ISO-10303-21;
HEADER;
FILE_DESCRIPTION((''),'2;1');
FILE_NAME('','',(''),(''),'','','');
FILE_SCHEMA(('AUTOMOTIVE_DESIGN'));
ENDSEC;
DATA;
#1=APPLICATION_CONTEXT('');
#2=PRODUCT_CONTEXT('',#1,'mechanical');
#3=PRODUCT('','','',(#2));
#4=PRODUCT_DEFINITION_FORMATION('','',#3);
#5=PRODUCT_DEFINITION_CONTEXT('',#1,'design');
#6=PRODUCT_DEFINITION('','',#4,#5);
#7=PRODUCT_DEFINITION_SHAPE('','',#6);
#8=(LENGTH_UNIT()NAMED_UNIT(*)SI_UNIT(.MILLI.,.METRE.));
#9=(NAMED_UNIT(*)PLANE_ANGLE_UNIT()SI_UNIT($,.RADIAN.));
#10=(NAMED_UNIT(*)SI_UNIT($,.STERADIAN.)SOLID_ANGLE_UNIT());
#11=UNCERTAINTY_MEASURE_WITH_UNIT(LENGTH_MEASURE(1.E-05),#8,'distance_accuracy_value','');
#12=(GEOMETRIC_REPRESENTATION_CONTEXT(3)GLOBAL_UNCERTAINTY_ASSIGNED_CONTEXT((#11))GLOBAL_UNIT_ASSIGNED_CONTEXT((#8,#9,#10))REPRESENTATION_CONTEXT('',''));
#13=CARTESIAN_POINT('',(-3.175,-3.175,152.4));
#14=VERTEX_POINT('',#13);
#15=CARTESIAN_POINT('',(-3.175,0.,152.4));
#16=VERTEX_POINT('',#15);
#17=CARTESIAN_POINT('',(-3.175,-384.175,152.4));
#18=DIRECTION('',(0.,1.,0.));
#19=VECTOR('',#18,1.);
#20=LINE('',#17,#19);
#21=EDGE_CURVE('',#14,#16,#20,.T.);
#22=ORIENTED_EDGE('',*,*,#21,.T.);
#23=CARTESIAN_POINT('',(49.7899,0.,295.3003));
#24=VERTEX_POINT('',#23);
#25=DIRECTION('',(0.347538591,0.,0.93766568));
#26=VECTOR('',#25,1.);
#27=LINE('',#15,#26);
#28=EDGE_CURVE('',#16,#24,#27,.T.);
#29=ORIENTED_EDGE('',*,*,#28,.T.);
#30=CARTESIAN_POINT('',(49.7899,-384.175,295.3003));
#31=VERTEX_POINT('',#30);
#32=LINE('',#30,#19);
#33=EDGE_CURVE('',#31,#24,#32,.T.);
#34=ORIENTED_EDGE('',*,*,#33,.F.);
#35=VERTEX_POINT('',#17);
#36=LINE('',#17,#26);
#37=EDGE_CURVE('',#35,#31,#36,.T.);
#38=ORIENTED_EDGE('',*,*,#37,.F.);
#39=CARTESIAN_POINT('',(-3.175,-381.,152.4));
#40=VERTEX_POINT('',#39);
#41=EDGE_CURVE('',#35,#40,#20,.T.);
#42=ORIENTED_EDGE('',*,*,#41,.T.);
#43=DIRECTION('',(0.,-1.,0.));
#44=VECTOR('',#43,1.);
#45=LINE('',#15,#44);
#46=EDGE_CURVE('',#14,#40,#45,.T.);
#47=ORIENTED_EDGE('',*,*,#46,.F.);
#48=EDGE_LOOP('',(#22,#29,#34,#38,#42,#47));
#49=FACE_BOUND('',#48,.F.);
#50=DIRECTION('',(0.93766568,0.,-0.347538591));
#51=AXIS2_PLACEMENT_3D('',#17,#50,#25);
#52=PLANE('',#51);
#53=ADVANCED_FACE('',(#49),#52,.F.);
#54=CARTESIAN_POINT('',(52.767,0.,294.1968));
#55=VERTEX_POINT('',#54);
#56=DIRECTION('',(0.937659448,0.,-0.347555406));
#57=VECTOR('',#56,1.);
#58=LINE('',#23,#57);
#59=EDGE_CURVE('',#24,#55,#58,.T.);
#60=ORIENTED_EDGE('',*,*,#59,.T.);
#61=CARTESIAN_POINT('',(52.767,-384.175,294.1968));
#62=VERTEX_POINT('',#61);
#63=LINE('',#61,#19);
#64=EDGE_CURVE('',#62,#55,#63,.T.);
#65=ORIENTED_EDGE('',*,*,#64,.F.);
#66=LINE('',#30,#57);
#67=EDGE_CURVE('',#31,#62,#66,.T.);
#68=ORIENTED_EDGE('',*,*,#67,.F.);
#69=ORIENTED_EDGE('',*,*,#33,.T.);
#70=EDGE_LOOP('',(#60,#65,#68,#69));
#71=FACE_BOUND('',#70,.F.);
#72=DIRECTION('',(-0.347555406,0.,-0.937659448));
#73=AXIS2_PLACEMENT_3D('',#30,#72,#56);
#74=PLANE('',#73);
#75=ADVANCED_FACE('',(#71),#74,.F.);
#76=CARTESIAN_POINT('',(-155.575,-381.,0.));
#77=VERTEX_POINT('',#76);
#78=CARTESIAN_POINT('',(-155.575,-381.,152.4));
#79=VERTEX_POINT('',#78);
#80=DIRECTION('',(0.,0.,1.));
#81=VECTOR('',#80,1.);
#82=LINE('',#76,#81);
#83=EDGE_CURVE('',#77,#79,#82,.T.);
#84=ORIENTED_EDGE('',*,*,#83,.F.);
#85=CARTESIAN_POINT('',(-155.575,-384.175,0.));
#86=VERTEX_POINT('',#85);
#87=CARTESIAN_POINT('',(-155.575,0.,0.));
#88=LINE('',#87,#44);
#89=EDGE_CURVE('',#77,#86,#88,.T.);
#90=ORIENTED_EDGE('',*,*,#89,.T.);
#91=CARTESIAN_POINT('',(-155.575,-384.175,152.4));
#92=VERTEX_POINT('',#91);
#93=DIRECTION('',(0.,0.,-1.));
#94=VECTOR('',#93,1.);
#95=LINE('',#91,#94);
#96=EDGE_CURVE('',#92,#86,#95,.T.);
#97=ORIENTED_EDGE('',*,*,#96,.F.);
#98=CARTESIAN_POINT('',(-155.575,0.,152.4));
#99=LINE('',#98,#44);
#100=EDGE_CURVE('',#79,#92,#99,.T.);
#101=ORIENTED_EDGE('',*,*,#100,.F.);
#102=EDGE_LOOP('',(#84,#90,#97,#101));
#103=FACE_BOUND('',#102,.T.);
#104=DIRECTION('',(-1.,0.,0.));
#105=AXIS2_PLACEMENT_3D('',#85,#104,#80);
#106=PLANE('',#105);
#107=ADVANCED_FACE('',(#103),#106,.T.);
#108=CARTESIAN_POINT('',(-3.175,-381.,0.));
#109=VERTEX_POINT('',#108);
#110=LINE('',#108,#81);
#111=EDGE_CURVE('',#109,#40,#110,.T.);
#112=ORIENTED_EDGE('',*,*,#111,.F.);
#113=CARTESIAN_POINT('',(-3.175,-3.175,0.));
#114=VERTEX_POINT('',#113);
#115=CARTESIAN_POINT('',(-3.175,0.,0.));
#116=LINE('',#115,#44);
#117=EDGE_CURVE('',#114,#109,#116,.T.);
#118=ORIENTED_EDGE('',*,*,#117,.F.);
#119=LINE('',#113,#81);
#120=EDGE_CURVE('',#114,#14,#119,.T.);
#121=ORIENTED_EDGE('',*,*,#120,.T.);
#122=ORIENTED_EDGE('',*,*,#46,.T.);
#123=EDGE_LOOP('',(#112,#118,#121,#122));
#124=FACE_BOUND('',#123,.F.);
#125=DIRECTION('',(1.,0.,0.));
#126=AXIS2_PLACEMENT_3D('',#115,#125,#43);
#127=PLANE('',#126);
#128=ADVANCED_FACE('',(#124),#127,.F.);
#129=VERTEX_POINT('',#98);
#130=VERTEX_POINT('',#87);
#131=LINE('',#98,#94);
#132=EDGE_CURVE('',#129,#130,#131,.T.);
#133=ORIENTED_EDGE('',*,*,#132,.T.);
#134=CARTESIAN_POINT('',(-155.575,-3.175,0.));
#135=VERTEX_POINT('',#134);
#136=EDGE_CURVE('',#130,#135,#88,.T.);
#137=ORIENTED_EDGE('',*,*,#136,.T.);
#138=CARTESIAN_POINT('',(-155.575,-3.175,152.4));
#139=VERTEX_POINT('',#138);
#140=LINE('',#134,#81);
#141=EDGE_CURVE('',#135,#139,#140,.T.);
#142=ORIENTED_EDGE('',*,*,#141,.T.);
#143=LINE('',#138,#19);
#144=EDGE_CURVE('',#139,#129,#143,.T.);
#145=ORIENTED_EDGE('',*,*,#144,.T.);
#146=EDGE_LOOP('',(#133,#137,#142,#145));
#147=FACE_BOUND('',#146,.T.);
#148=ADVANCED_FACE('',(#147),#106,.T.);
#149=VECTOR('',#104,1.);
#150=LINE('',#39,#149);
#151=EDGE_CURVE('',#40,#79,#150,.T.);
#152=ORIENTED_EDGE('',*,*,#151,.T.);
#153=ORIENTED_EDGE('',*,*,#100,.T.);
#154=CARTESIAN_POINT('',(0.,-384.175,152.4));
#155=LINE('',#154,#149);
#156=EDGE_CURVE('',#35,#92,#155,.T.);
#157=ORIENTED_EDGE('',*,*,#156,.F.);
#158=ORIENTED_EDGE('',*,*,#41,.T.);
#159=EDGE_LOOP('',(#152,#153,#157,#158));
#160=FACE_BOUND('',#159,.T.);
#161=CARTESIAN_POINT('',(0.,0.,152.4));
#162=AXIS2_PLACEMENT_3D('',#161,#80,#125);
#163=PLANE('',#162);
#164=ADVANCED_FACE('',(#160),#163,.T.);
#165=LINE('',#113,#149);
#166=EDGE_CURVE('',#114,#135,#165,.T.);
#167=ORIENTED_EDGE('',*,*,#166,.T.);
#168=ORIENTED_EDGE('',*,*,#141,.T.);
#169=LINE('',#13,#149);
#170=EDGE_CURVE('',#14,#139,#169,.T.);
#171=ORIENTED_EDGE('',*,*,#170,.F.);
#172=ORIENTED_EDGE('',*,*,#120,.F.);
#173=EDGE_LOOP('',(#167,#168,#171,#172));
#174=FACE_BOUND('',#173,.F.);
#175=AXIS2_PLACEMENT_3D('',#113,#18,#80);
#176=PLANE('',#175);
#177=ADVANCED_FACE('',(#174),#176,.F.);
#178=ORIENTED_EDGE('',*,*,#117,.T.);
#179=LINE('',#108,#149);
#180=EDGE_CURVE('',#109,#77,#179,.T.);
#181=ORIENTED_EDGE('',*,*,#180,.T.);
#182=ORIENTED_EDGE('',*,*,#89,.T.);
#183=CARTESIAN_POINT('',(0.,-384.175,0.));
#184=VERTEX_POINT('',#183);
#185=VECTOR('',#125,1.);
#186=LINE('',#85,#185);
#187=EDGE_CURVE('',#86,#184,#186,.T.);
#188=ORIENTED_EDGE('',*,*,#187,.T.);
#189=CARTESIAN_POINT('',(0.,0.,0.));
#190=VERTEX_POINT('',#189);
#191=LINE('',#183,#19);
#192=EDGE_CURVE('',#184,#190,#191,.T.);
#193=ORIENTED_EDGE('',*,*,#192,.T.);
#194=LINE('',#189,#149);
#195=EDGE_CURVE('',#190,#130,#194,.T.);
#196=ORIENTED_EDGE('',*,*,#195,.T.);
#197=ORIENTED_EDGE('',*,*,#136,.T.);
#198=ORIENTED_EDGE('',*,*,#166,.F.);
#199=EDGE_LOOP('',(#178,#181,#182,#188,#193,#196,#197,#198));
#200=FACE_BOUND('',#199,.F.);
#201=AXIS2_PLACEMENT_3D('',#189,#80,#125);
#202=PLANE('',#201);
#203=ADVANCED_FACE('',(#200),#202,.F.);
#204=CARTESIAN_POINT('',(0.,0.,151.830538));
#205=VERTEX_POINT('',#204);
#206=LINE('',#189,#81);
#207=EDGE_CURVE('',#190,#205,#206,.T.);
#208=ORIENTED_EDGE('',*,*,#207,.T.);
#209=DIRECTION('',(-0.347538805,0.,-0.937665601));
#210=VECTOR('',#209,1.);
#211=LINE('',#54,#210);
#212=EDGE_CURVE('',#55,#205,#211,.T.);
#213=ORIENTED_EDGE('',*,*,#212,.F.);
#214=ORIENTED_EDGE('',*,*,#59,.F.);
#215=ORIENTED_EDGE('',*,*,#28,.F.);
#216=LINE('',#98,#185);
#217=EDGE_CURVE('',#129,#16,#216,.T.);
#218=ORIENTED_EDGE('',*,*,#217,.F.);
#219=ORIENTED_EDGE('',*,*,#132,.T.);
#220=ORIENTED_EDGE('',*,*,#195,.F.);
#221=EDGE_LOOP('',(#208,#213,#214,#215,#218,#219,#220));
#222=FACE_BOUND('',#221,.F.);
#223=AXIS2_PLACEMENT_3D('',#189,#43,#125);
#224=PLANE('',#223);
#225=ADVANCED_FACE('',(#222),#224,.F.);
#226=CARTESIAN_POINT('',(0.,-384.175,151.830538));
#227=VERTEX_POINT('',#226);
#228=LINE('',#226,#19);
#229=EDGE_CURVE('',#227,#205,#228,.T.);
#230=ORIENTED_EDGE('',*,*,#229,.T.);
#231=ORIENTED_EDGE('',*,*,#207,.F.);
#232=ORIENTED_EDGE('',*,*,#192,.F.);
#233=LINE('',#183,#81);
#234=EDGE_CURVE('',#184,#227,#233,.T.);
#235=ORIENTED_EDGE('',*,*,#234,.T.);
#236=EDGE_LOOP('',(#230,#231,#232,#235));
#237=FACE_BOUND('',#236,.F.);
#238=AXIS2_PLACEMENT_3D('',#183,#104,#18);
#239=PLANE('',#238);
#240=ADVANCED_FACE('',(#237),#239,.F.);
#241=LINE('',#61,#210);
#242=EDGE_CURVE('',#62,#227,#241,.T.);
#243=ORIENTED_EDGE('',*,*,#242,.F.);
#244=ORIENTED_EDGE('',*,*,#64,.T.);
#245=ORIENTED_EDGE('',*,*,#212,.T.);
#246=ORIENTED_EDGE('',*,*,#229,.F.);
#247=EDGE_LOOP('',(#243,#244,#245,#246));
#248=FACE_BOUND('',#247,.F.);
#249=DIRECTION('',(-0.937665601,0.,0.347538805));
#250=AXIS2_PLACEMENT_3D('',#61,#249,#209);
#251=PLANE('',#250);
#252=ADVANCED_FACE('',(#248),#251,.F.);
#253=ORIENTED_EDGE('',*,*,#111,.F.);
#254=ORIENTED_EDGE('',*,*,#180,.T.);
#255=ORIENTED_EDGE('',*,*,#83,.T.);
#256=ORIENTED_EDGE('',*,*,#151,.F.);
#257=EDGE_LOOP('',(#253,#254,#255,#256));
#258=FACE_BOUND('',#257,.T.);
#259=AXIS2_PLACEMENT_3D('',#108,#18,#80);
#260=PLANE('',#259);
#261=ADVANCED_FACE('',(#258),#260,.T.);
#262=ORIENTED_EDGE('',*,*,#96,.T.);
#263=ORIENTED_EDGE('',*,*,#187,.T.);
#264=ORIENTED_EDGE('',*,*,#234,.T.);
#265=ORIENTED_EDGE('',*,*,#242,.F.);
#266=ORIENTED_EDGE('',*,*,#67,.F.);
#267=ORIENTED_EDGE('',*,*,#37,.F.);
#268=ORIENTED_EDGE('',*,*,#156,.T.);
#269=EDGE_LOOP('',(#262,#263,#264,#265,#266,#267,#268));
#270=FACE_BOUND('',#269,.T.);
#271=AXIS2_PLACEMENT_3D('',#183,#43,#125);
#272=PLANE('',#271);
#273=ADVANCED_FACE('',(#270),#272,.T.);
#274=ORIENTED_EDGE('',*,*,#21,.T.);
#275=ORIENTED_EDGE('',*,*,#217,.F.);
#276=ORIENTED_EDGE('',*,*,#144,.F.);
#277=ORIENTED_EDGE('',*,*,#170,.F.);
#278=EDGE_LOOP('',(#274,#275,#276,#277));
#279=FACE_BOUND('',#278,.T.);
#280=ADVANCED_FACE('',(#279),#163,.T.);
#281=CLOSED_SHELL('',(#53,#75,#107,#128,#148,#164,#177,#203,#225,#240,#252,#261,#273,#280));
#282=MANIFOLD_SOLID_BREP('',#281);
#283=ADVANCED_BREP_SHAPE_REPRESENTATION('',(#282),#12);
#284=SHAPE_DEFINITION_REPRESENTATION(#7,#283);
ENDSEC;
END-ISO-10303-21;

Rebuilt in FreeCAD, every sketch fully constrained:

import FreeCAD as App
import Part
import Sketcher
Q = App.Units.Quantity


def add_polygon(sketch, points):
    """Adds a closed chain of lines whose ends are joined by coincident constraints."""
    first, n = sketch.GeometryCount, len(points)
    for a, b in zip(points, points[1:] + points[:1]):
        sketch.addGeometry(Part.LineSegment(App.Vector(*a, 0), App.Vector(*b, 0)), False)
    for i in range(n):
        sketch.addConstraint(Sketcher.Constraint("Coincident", first + i, 2, first + (i + 1) % n, 1))

doc = App.newDocument("Part")
body = doc.addObject("PartDesign::Body", "Body")

sketch1 = body.newObject("Sketcher::SketchObject", "Sketch")
sketch1.AttachmentSupport = (doc.getObject("XY_Plane"), [""])
sketch1.MapMode = "FlatFace"
add_polygon(sketch1, [(0, -384.175), (0, 0), (-3.175, 0), (-3.175, -384.175)])
sketch1.addConstraint(Sketcher.Constraint("Vertical", 0))
sketch1.addConstraint(Sketcher.Constraint("Horizontal", 1))
sketch1.addConstraint(Sketcher.Constraint("Vertical", 2))
sketch1.addConstraint(Sketcher.Constraint("Horizontal", 3))
sketch1.addConstraint(Sketcher.Constraint("Coincident", 0, 2, -1, 1))
sketch1.addConstraint(Sketcher.Constraint("DistanceX", 1, 2, 1, 1, Q("0.125 in")))
sketch1.addConstraint(Sketcher.Constraint("DistanceY", 0, 1, 0, 2, Q("15.125 in")))
pad1 = body.newObject("PartDesign::Pad", "Pad")
pad1.Profile = sketch1
pad1.Length = Q("6 in")

sketch2 = body.newObject("Sketcher::SketchObject", "Sketch001")
sketch2.AttachmentSupport = (doc.getObject("YZ_Plane"), [""])
sketch2.MapMode = "FlatFace"
sketch2.AttachmentOffset = App.Placement(App.Vector(0, 0, -0.125 * 25.4), App.Rotation())
add_polygon(sketch2, [(0, 152.4), (0, 0), (-3.175, 0), (-3.175, 152.4)])
add_polygon(sketch2, [(-381, 152.4), (-381, 0), (-384.175, 0), (-384.175, 152.4)])
sketch2.addConstraint(Sketcher.Constraint("Vertical", 0))
sketch2.addConstraint(Sketcher.Constraint("Horizontal", 1))
sketch2.addConstraint(Sketcher.Constraint("Vertical", 2))
sketch2.addConstraint(Sketcher.Constraint("Horizontal", 3))
sketch2.addConstraint(Sketcher.Constraint("Vertical", 4))
sketch2.addConstraint(Sketcher.Constraint("Horizontal", 5))
sketch2.addConstraint(Sketcher.Constraint("Vertical", 6))
sketch2.addConstraint(Sketcher.Constraint("Horizontal", 7))
sketch2.addConstraint(Sketcher.Constraint("Coincident", 0, 2, -1, 1))
sketch2.addConstraint(Sketcher.Constraint("PointOnObject", 4, 2, -1))
sketch2.addConstraint(Sketcher.Constraint("Horizontal", 3, 2, 6, 2))
sketch2.addConstraint(Sketcher.Constraint("Equal", 3, 5))
sketch2.addConstraint(Sketcher.Constraint("DistanceY", 0, 2, 0, 1, Q("6 in")))
sketch2.addConstraint(Sketcher.Constraint("DistanceX", 1, 2, 1, 1, Q("0.125 in")))
sketch2.addConstraint(Sketcher.Constraint("DistanceX", 4, 2, -1, 1, Q("15 in")))
pad2 = body.newObject("PartDesign::Pad", "Pad001")
pad2.Profile = sketch2
pad2.Length = Q("6 in")
pad2.Reversed = True

sketch3 = body.newObject("Sketcher::SketchObject", "Sketch002")
sketch3.AttachmentSupport = (doc.getObject("XZ_Plane"), [""])
sketch3.MapMode = "FlatFace"
sketch3.AttachmentOffset = App.Placement(App.Vector(0, 0, 15.125 * 25.4), App.Rotation())
add_polygon(sketch3, [(49.7899, 295.3003), (-3.175, 152.4), (-0.1979, 151.2966), (52.767, 294.1968)])
sketch3.addConstraint(Sketcher.Constraint("Perpendicular", 0, 1))
sketch3.addConstraint(Sketcher.Constraint("Perpendicular", 1, 2))
sketch3.addConstraint(Sketcher.Constraint("Perpendicular", 2, 3))
sketch3.addConstraint(Sketcher.Constraint("Distance", 0, Q("6 in")))
sketch3.addConstraint(Sketcher.Constraint("DistanceY", -1, 1, 0, 2, Q("6 in")))
sketch3.addConstraint(Sketcher.Constraint("Distance", 1, Q("0.125 in")))
sketch3.addConstraint(Sketcher.Constraint("DistanceX", 0, 2, -1, 1, Q("0.125 in")))
sketch3.addConstraint(Sketcher.Constraint("DistanceY", -1, 1, 3, 2, Q("11.626 in")))
pad3 = body.newObject("PartDesign::Pad", "Pad002")
pad3.Profile = sketch3
pad3.Length = Q("15.125 in")
pad3.Reversed = True

doc.recompute()
